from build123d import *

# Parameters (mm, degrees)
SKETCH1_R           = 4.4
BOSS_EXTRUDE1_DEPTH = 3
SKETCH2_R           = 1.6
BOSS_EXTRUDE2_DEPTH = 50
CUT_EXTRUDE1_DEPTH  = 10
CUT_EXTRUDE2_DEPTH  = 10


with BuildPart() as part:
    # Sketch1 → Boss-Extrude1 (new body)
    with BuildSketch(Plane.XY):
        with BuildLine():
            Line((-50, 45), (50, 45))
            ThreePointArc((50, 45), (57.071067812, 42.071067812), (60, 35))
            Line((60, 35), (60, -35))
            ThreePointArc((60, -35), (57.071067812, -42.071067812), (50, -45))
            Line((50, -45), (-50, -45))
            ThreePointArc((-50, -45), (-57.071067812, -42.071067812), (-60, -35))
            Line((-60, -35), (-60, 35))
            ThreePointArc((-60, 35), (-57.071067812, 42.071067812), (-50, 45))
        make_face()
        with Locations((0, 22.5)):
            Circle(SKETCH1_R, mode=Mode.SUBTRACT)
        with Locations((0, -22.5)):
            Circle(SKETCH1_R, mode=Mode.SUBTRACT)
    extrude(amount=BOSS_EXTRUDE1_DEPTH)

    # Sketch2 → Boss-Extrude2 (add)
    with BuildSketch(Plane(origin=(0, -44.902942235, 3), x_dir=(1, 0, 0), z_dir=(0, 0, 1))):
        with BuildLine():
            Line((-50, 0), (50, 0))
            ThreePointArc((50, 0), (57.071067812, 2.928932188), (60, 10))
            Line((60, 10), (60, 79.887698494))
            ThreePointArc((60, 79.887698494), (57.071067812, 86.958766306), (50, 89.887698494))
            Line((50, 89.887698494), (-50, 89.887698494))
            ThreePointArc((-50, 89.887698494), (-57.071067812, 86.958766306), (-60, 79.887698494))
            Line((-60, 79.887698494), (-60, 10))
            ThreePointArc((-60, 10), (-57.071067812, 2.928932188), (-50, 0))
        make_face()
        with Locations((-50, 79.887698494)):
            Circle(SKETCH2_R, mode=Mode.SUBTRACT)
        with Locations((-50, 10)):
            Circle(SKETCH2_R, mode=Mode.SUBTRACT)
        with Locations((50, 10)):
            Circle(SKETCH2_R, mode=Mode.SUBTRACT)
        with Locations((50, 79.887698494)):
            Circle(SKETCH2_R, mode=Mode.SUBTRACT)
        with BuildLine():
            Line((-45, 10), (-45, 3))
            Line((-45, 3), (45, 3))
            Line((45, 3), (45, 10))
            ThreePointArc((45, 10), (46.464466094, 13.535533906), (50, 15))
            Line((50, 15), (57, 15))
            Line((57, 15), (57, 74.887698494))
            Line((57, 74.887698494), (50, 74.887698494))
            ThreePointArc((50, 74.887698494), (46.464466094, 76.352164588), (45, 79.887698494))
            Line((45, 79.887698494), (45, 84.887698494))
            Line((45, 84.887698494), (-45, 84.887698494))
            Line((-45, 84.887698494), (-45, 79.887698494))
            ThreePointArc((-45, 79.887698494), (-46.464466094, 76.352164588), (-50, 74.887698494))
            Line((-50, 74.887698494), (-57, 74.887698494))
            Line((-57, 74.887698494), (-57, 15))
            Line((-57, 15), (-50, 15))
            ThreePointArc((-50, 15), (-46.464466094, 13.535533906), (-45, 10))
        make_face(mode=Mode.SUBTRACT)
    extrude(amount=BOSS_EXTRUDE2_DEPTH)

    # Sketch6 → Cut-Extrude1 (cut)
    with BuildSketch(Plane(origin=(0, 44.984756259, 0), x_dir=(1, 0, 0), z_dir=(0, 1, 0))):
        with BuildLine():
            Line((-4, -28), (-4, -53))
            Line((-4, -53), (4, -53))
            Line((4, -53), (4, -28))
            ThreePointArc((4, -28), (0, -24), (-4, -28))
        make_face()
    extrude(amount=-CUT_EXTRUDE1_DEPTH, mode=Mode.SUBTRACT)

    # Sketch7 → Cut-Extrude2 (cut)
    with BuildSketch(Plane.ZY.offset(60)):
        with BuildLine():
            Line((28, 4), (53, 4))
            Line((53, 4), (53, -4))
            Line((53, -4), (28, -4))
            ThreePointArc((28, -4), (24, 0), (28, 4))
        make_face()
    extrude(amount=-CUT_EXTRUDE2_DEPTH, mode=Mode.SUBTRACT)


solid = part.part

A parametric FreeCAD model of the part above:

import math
import FreeCAD as App
import Part
import Sketcher
from FreeCAD import Vector

doc = App.newDocument("Part")
body = doc.addObject("PartDesign::Body", "Body")

sketch1 = doc.addObject("Sketcher::SketchObject", "Sketch")
body.addObject(sketch1)
sketch1.AttachmentSupport = (doc.XY_Plane, [""])
sketch1.MapMode = "FlatFace"
sketch1.addGeometry(Part.LineSegment(Vector(50, 45, 0), Vector(-50, 45, 0)), False)
sketch1.addGeometry(Part.ArcOfCircle(Part.Circle(Vector(-50, 35, 0), Vector(0, 0, 1), 10), math.radians(90), math.radians(180)), False)
sketch1.addGeometry(Part.LineSegment(Vector(-60, 35, 0), Vector(-60, -35, 0)), False)
sketch1.addGeometry(Part.ArcOfCircle(Part.Circle(Vector(-50, -35, 0), Vector(0, 0, 1), 10), math.radians(180), math.radians(270)), False)
sketch1.addGeometry(Part.LineSegment(Vector(-50, -45, 0), Vector(50, -45, 0)), False)
sketch1.addGeometry(Part.ArcOfCircle(Part.Circle(Vector(50, -35, 0), Vector(0, 0, 1), 10), math.radians(-90), math.radians(0)), False)
sketch1.addGeometry(Part.LineSegment(Vector(60, -35, 0), Vector(60, 35, 0)), False)
sketch1.addGeometry(Part.ArcOfCircle(Part.Circle(Vector(50, 35, 0), Vector(0, 0, 1), 10), math.radians(0), math.radians(90)), False)
sketch1.addGeometry(Part.Circle(Vector(0, -22.5, 0), Vector(0, 0, 1), 4.4), False)
sketch1.addGeometry(Part.Circle(Vector(0, 22.5, 0), Vector(0, 0, 1), 4.4), False)
sketch1.addConstraint(Sketcher.Constraint("Tangent", 0, 2, 1, 1))
sketch1.addConstraint(Sketcher.Constraint("Tangent", 1, 2, 2, 1))
sketch1.addConstraint(Sketcher.Constraint("Tangent", 2, 2, 3, 1))
sketch1.addConstraint(Sketcher.Constraint("Tangent", 3, 2, 4, 1))
sketch1.addConstraint(Sketcher.Constraint("Tangent", 4, 2, 5, 1))
sketch1.addConstraint(Sketcher.Constraint("Tangent", 5, 2, 6, 1))
sketch1.addConstraint(Sketcher.Constraint("Tangent", 6, 2, 7, 1))
sketch1.addConstraint(Sketcher.Constraint("Tangent", 7, 2, 0, 1))
sketch1.addConstraint(Sketcher.Constraint("Horizontal", 0))
sketch1.addConstraint(Sketcher.Constraint("Vertical", 2))
sketch1.addConstraint(Sketcher.Constraint("Horizontal", 4))
sketch1.addConstraint(Sketcher.Constraint("Vertical", 6))
sketch1.addConstraint(Sketcher.Constraint("Equal", 1, 3))
sketch1.addConstraint(Sketcher.Constraint("Equal", 3, 5))
sketch1.addConstraint(Sketcher.Constraint("Equal", 5, 7))
sketch1.addConstraint(Sketcher.Constraint("Equal", 8, 9))
sketch1.addConstraint(Sketcher.Constraint("Symmetric", 1, 3, 5, 3, -1, 1))
sketch1.addConstraint(Sketcher.Constraint("Symmetric", 8, 3, 9, 3, -1, 1))
sketch1.addConstraint(Sketcher.Constraint("PointOnObject", 8, 3, -2))
sketch1.addConstraint(Sketcher.Constraint("Radius", 1, 10.0))
sketch1.addConstraint(Sketcher.Constraint("Diameter", 8, 8.8))
sketch1.addConstraint(Sketcher.Constraint("DistanceX", 0, 2, 0, 1, 100.0))
sketch1.addConstraint(Sketcher.Constraint("DistanceY", 2, 2, 2, 1, 70.0))
sketch1.addConstraint(Sketcher.Constraint("DistanceY", 8, 3, 9, 3, 45.0))
pad1 = doc.addObject("PartDesign::Pad", "Pad")
body.addObject(pad1)
pad1.Profile = sketch1
pad1.Length = 3

sketch2 = doc.addObject("Sketcher::SketchObject", "Sketch001")
body.addObject(sketch2)
sketch2.AttachmentSupport = (doc.XY_Plane, [""])
sketch2.MapMode = "FlatFace"
sketch2.AttachmentOffset = App.Placement(Vector(0, 0, 3), App.Rotation())
sketch2.addGeometry(Part.LineSegment(Vector(-50, -44.9, 0), Vector(50, -44.9, 0)), False)
sketch2.addGeometry(Part.ArcOfCircle(Part.Circle(Vector(50, -34.9, 0), Vector(0, 0, 1), 10), math.radians(-90), math.radians(0)), False)
sketch2.addGeometry(Part.LineSegment(Vector(60, -34.9, 0), Vector(60, 35, 0)), False)
sketch2.addGeometry(Part.ArcOfCircle(Part.Circle(Vector(50, 35, 0), Vector(0, 0, 1), 10), math.radians(0), math.radians(90)), False)
sketch2.addGeometry(Part.LineSegment(Vector(50, 45, 0), Vector(-50, 45, 0)), False)
sketch2.addGeometry(Part.ArcOfCircle(Part.Circle(Vector(-50, 35, 0), Vector(0, 0, 1), 10), math.radians(90), math.radians(180)), False)
sketch2.addGeometry(Part.LineSegment(Vector(-60, 35, 0), Vector(-60, -34.9, 0)), False)
sketch2.addGeometry(Part.ArcOfCircle(Part.Circle(Vector(-50, -34.9, 0), Vector(0, 0, 1), 10), math.radians(180), math.radians(270)), False)
sketch2.addGeometry(Part.Circle(Vector(-50, -34.9, 0), Vector(0, 0, 1), 1.6), False)
sketch2.addGeometry(Part.Circle(Vector(50, -34.9, 0), Vector(0, 0, 1), 1.6), False)
sketch2.addGeometry(Part.Circle(Vector(-50, 35, 0), Vector(0, 0, 1), 1.6), False)
sketch2.addGeometry(Part.LineSegment(Vector(-45, -41.9, 0), Vector(-45, -34.9, 0)), False)
sketch2.addGeometry(Part.ArcOfCircle(Part.Circle(Vector(-50, -34.9, 0), Vector(0, 0, 1), 5), math.radians(0), math.radians(90)), False)
sketch2.addGeometry(Part.LineSegment(Vector(-50, -29.9, 0), Vector(-57, -29.9, 0)), False)
sketch2.addGeometry(Part.LineSegment(Vector(-57, -29.9, 0), Vector(-57, 30, 0)), False)
sketch2.addGeometry(Part.LineSegment(Vector(-57, 30, 0), Vector(-50, 30, 0)), False)
sketch2.addGeometry(Part.ArcOfCircle(Part.Circle(Vector(-50, 35, 0), Vector(0, 0, 1), 5), math.radians(-90), math.radians(0)), False)
sketch2.addGeometry(Part.LineSegment(Vector(-45, 35, 0), Vector(-45, 40, 0)), False)
sketch2.addGeometry(Part.LineSegment(Vector(-45, 40, 0), Vector(45, 40, 0)), False)
sketch2.addGeometry(Part.LineSegment(Vector(45, 40, 0), Vector(45, 35, 0)), False)
sketch2.addGeometry(Part.ArcOfCircle(Part.Circle(Vector(50, 35, 0), Vector(0, 0, 1), 5), math.radians(180), math.radians(270)), False)
sketch2.addGeometry(Part.LineSegment(Vector(50, 30, 0), Vector(57, 30, 0)), False)
sketch2.addGeometry(Part.LineSegment(Vector(57, 30, 0), Vector(57, -29.9, 0)), False)
sketch2.addGeometry(Part.LineSegment(Vector(57, -29.9, 0), Vector(50, -29.9, 0)), False)
sketch2.addGeometry(Part.ArcOfCircle(Part.Circle(Vector(50, -34.9, 0), Vector(0, 0, 1), 5), math.radians(90), math.radians(180)), False)
sketch2.addGeometry(Part.LineSegment(Vector(45, -34.9, 0), Vector(45, -41.9, 0)), False)
sketch2.addGeometry(Part.LineSegment(Vector(45, -41.9, 0), Vector(-45, -41.9, 0)), False)
sketch2.addGeometry(Part.Circle(Vector(50, 35, 0), Vector(0, 0, 1), 1.6), False)
sketch2.addConstraint(Sketcher.Constraint("Tangent", 0, 2, 1, 1))
sketch2.addConstraint(Sketcher.Constraint("Tangent", 1, 2, 2, 1))
sketch2.addConstraint(Sketcher.Constraint("Tangent", 2, 2, 3, 1))
sketch2.addConstraint(Sketcher.Constraint("Tangent", 3, 2, 4, 1))
sketch2.addConstraint(Sketcher.Constraint("Tangent", 4, 2, 5, 1))
sketch2.addConstraint(Sketcher.Constraint("Tangent", 5, 2, 6, 1))
sketch2.addConstraint(Sketcher.Constraint("Tangent", 6, 2, 7, 1))
sketch2.addConstraint(Sketcher.Constraint("Tangent", 7, 2, 0, 1))
sketch2.addConstraint(Sketcher.Constraint("Tangent", 11, 2, 12, 1))
sketch2.addConstraint(Sketcher.Constraint("Tangent", 12, 2, 13, 1))
sketch2.addConstraint(Sketcher.Constraint("Coincident", 13, 2, 14, 1))
sketch2.addConstraint(Sketcher.Constraint("Coincident", 14, 2, 15, 1))
sketch2.addConstraint(Sketcher.Constraint("Tangent", 15, 2, 16, 1))
sketch2.addConstraint(Sketcher.Constraint("Tangent", 16, 2, 17, 1))
sketch2.addConstraint(Sketcher.Constraint("Coincident", 17, 2, 18, 1))
sketch2.addConstraint(Sketcher.Constraint("Coincident", 18, 2, 19, 1))
sketch2.addConstraint(Sketcher.Constraint("Tangent", 19, 2, 20, 1))
sketch2.addConstraint(Sketcher.Constraint("Tangent", 20, 2, 21, 1))
sketch2.addConstraint(Sketcher.Constraint("Coincident", 21, 2, 22, 1))
sketch2.addConstraint(Sketcher.Constraint("Coincident", 22, 2, 23, 1))
sketch2.addConstraint(Sketcher.Constraint("Tangent", 23, 2, 24, 1))
sketch2.addConstraint(Sketcher.Constraint("Tangent", 24, 2, 25, 1))
sketch2.addConstraint(Sketcher.Constraint("Coincident", 25, 2, 26, 1))
sketch2.addConstraint(Sketcher.Constraint("Coincident", 26, 2, 11, 1))
sketch2.addConstraint(Sketcher.Constraint("Horizontal", 0))
sketch2.addConstraint(Sketcher.Constraint("Vertical", 2))
sketch2.addConstraint(Sketcher.Constraint("Horizontal", 4))
sketch2.addConstraint(Sketcher.Constraint("Vertical", 6))
sketch2.addConstraint(Sketcher.Constraint("Vertical", 11))
sketch2.addConstraint(Sketcher.Constraint("Horizontal", 13))
sketch2.addConstraint(Sketcher.Constraint("Vertical", 14))
sketch2.addConstraint(Sketcher.Constraint("Horizontal", 15))
sketch2.addConstraint(Sketcher.Constraint("Vertical", 17))
sketch2.addConstraint(Sketcher.Constraint("Horizontal", 18))
sketch2.addConstraint(Sketcher.Constraint("Vertical", 19))
sketch2.addConstraint(Sketcher.Constraint("Horizontal", 21))
sketch2.addConstraint(Sketcher.Constraint("Vertical", 22))
sketch2.addConstraint(Sketcher.Constraint("Horizontal", 23))
sketch2.addConstraint(Sketcher.Constraint("Vertical", 25))
sketch2.addConstraint(Sketcher.Constraint("Horizontal", 26))
sketch2.addConstraint(Sketcher.Constraint("Coincident", 8, 3, 7, 3))
sketch2.addConstraint(Sketcher.Constraint("Coincident", 9, 3, 1, 3))
sketch2.addConstraint(Sketcher.Constraint("Coincident", 10, 3, 5, 3))
sketch2.addConstraint(Sketcher.Constraint("Coincident", 12, 3, 7, 3))
sketch2.addConstraint(Sketcher.Constraint("Coincident", 16, 3, 5, 3))
sketch2.addConstraint(Sketcher.Constraint("Coincident", 20, 3, 3, 3))
sketch2.addConstraint(Sketcher.Constraint("Coincident", 24, 3, 1, 3))
sketch2.addConstraint(Sketcher.Constraint("Coincident", 27, 3, 3, 3))
sketch2.addConstraint(Sketcher.Constraint("Equal", 1, 3))
sketch2.addConstraint(Sketcher.Constraint("Equal", 3, 5))
sketch2.addConstraint(Sketcher.Constraint("Equal", 5, 7))
sketch2.addConstraint(Sketcher.Constraint("Equal", 8, 9))
sketch2.addConstraint(Sketcher.Constraint("Equal", 9, 10))
sketch2.addConstraint(Sketcher.Constraint("Equal", 12, 16))
sketch2.addConstraint(Sketcher.Constraint("Equal", 16, 20))
sketch2.addConstraint(Sketcher.Constraint("Equal", 20, 24))
sketch2.addConstraint(Sketcher.Constraint("Equal", 10, 27))
sketch2.addConstraint(Sketcher.Constraint("Equal", 15, 21))
sketch2.addConstraint(Sketcher.Constraint("Equal", 23, 11))
sketch2.addConstraint(Sketcher.Constraint("Radius", 1, 10.0))
sketch2.addConstraint(Sketcher.Constraint("Radius", 12, 5.0))
sketch2.addConstraint(Sketcher.Constraint("Diameter", 8, 3.2))
sketch2.addConstraint(Sketcher.Constraint("DistanceX", 0, 1, 0, 2, 100.0))
sketch2.addConstraint(Sketcher.Constraint("DistanceX", 13, 2, 13, 1, 7.0))
sketch2.addConstraint(Sketcher.Constraint("DistanceY", 17, 1, 17, 2, 5.0))
sketch2.addConstraint(Sketcher.Constraint("DistanceX", -1, 1, 1, 3, 50.0))
sketch2.addConstraint(Sketcher.Constraint("DistanceY", 2, 1, 2, 2, 69.887698))
sketch2.addConstraint(Sketcher.Constraint("DistanceY", 1, 3, -1, 1, 34.902942))
pad2 = doc.addObject("PartDesign::Pad", "Pad001")
body.addObject(pad2)
pad2.Profile = sketch2
pad2.Length = 50

sketch3 = doc.addObject("Sketcher::SketchObject", "Sketch002")
body.addObject(sketch3)
sketch3.AttachmentSupport = (doc.XZ_Plane, [""])
sketch3.MapMode = "FlatFace"
sketch3.AttachmentOffset = App.Placement(Vector(0, 0, -44.984756), App.Rotation())
sketch3.addGeometry(Part.LineSegment(Vector(-4, 28, 0), Vector(-4, 53, 0)), False)
sketch3.addGeometry(Part.LineSegment(Vector(-4, 53, 0), Vector(4, 53, 0)), False)
sketch3.addGeometry(Part.LineSegment(Vector(4, 53, 0), Vector(4, 28, 0)), False)
sketch3.addGeometry(Part.ArcOfCircle(Part.Circle(Vector(0, 28, 0), Vector(0, 0, 1), 4), math.radians(180), math.radians(360)), False)
sketch3.addConstraint(Sketcher.Constraint("Coincident", 0, 2, 1, 1))
sketch3.addConstraint(Sketcher.Constraint("Coincident", 1, 2, 2, 1))
sketch3.addConstraint(Sketcher.Constraint("Tangent", 2, 2, 3, 2))
sketch3.addConstraint(Sketcher.Constraint("Tangent", 3, 1, 0, 1))
sketch3.addConstraint(Sketcher.Constraint("Vertical", 0))
sketch3.addConstraint(Sketcher.Constraint("Horizontal", 1))
sketch3.addConstraint(Sketcher.Constraint("Vertical", 2))
sketch3.addConstraint(Sketcher.Constraint("PointOnObject", 3, 3, -2))
sketch3.addConstraint(Sketcher.Constraint("Radius", 3, 4.0))
sketch3.addConstraint(Sketcher.Constraint("DistanceY", 0, 1, 0, 2, 25.0))
sketch3.addConstraint(Sketcher.Constraint("DistanceY", -1, 1, 3, 3, 28.0))
pocket1 = doc.addObject("PartDesign::Pocket", "Pocket")
body.addObject(pocket1)
pocket1.Profile = sketch3
pocket1.Length = 10
pocket1.Reversed = True

sketch4 = doc.addObject("Sketcher::SketchObject", "Sketch003")
body.addObject(sketch4)
sketch4.AttachmentSupport = (doc.YZ_Plane, [""])
sketch4.MapMode = "FlatFace"
sketch4.AttachmentOffset = App.Placement(Vector(0, 0, -60), App.Rotation())
sketch4.addGeometry(Part.LineSegment(Vector(4, 53, 0), Vector(4, 28, 0)), False)
sketch4.addGeometry(Part.ArcOfCircle(Part.Circle(Vector(0, 28, 0), Vector(0, 0, 1), 4), math.radians(180), math.radians(360)), False)
sketch4.addGeometry(Part.LineSegment(Vector(-4, 28, 0), Vector(-4, 53, 0)), False)
sketch4.addGeometry(Part.LineSegment(Vector(-4, 53, 0), Vector(4, 53, 0)), False)
sketch4.addConstraint(Sketcher.Constraint("Tangent", 0, 2, 1, 2))
sketch4.addConstraint(Sketcher.Constraint("Tangent", 1, 1, 2, 1))
sketch4.addConstraint(Sketcher.Constraint("Coincident", 2, 2, 3, 1))
sketch4.addConstraint(Sketcher.Constraint("Coincident", 3, 2, 0, 1))
sketch4.addConstraint(Sketcher.Constraint("Vertical", 0))
sketch4.addConstraint(Sketcher.Constraint("Vertical", 2))
sketch4.addConstraint(Sketcher.Constraint("Horizontal", 3))
sketch4.addConstraint(Sketcher.Constraint("PointOnObject", 1, 3, -2))
sketch4.addConstraint(Sketcher.Constraint("Radius", 1, 4.0))
sketch4.addConstraint(Sketcher.Constraint("DistanceY", 0, 2, 0, 1, 25.0))
sketch4.addConstraint(Sketcher.Constraint("DistanceY", -1, 1, 1, 3, 28.0))
pocket2 = doc.addObject("PartDesign::Pocket", "Pocket001")
body.addObject(pocket2)
pocket2.Profile = sketch4
pocket2.Length = 10
pocket2.Reversed = True

doc.recompute()
